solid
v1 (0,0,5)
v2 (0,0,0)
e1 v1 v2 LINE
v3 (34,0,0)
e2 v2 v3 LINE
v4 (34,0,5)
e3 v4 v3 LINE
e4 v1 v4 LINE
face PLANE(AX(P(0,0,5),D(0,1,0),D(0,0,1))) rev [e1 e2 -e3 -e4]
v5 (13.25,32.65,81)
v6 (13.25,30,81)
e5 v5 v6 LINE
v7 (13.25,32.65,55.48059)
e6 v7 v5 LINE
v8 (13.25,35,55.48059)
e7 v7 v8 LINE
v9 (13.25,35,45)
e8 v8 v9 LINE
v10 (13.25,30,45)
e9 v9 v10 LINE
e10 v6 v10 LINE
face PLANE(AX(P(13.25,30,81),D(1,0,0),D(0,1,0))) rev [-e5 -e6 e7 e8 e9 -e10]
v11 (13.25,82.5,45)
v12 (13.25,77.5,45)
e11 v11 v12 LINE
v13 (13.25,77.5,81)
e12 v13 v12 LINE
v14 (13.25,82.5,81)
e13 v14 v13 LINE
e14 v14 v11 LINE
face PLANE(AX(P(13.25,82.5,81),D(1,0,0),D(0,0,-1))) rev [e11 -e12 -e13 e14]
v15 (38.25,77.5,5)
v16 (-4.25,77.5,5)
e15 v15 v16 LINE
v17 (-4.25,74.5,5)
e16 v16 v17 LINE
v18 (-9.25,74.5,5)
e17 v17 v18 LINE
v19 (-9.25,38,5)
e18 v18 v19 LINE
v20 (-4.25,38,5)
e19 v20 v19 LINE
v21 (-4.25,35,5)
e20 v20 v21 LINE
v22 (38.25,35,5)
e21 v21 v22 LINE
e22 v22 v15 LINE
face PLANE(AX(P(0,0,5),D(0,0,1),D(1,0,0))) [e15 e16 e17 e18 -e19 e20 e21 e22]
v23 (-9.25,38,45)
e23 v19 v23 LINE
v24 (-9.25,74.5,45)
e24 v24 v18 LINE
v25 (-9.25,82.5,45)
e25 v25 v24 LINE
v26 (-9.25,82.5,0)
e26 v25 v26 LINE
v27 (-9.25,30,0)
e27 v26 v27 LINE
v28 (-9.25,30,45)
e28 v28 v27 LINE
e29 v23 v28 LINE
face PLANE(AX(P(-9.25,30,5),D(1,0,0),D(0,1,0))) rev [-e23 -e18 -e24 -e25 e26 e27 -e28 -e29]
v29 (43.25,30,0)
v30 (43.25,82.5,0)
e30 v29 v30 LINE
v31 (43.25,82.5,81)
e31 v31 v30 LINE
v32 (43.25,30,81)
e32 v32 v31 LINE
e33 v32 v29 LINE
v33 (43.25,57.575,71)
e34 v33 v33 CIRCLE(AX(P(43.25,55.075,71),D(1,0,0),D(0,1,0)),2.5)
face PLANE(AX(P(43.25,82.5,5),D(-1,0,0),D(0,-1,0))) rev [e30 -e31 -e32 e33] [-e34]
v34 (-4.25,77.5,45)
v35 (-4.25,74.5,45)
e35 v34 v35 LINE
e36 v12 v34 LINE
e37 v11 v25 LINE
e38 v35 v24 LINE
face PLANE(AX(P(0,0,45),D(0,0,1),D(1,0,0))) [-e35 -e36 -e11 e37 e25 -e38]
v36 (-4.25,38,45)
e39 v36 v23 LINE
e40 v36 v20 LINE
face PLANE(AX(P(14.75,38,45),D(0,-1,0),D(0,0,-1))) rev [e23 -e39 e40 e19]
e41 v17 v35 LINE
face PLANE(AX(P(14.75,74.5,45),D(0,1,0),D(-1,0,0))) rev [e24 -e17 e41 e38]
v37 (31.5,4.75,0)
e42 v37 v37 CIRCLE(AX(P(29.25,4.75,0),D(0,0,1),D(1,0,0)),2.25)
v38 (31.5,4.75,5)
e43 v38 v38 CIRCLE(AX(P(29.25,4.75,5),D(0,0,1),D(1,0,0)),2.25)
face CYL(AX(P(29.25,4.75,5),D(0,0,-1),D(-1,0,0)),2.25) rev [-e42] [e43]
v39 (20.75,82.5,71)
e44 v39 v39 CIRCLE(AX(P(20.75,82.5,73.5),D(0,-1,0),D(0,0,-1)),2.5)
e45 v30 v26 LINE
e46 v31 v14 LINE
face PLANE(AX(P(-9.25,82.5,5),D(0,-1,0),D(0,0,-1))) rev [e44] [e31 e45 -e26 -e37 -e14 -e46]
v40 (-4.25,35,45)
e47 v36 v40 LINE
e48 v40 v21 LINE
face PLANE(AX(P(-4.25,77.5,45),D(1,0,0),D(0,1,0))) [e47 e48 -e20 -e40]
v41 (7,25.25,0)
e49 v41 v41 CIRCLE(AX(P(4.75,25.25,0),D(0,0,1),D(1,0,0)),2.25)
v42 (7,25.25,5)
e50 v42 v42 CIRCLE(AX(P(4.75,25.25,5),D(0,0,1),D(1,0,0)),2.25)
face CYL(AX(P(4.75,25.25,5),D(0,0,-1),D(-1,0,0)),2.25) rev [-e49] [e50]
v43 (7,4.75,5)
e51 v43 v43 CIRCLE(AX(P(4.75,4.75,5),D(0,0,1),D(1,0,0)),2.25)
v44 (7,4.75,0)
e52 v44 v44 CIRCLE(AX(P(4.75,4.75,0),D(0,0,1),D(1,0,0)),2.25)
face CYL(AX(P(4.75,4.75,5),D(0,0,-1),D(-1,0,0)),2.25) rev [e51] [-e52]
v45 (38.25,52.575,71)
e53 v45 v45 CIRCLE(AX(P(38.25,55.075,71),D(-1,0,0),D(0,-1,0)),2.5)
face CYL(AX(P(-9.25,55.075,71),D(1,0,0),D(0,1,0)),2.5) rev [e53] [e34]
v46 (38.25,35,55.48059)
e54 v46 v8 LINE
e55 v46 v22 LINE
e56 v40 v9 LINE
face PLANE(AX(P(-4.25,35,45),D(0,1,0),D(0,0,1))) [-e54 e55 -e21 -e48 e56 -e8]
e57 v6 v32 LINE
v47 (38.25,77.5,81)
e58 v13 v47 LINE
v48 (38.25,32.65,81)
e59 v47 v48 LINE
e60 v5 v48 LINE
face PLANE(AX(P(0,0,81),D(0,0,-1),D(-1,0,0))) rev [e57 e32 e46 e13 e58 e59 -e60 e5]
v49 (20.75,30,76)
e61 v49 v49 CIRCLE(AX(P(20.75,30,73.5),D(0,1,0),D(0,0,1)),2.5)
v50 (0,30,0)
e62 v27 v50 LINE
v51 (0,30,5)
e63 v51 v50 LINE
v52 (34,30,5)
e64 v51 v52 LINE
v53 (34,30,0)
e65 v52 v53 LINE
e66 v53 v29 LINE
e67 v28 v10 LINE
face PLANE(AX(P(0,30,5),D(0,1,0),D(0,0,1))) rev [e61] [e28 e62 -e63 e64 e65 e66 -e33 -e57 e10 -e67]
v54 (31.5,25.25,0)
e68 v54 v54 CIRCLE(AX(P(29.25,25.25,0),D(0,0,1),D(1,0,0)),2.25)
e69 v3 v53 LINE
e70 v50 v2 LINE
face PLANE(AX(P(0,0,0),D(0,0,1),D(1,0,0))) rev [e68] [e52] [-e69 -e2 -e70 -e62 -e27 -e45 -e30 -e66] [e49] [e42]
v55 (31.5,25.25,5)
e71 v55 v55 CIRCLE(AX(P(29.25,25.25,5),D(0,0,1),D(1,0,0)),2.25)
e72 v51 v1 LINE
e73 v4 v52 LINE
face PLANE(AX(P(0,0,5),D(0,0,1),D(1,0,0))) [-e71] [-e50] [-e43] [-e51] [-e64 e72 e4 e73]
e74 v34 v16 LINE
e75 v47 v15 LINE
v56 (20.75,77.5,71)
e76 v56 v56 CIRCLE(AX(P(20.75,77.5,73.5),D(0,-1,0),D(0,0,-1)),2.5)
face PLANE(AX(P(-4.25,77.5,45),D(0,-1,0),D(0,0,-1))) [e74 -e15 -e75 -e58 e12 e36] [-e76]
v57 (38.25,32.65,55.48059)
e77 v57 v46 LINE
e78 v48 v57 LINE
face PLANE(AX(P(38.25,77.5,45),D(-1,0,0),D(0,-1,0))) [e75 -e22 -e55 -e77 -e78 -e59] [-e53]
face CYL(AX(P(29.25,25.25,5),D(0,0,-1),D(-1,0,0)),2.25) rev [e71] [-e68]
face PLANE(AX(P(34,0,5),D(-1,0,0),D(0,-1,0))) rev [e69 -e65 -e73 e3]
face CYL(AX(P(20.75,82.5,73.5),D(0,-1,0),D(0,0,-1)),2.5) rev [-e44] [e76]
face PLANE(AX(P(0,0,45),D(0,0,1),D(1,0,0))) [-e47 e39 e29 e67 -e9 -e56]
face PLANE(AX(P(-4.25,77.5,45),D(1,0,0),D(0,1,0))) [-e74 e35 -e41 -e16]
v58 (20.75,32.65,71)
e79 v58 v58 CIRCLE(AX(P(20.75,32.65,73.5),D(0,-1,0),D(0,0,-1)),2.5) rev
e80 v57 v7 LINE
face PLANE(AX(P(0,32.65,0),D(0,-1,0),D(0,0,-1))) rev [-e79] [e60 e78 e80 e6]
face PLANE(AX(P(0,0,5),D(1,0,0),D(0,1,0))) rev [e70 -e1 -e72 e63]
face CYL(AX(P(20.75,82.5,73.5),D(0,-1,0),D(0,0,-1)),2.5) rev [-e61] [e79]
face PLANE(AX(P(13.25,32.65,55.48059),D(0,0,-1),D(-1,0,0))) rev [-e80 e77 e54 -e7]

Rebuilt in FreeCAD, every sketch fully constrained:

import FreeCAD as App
import Part
import Sketcher
from FreeCAD import Vector
Q = App.Units.Quantity


def add_polygon(sketch, points):
    """Adds a closed chain of lines whose ends are joined by coincident constraints."""
    first, n = sketch.GeometryCount, len(points)
    for a, b in zip(points, points[1:] + points[:1]):
        sketch.addGeometry(Part.LineSegment(App.Vector(*a, 0), App.Vector(*b, 0)), False)
    for i in range(n):
        sketch.addConstraint(Sketcher.Constraint("Coincident", first + i, 2, first + (i + 1) % n, 1))

doc = App.newDocument("Part")
body = doc.addObject("PartDesign::Body", "Body")

# Sketch on XY plane
sketch1 = doc.addObject("Sketcher::SketchObject", "Sketch")
body.addObject(sketch1)
sketch1.AttachmentSupport = (doc.XY_Plane, [""])
sketch1.MapMode = "FlatFace"
add_polygon(sketch1, [(-9.25, 30), (0, 30), (0, 0), (34, 0), (34, 30), (43.25, 30), (43.25, 82.5), (-9.25, 82.5)])  # lines 0-7
sketch1.addGeometry(Part.Circle(Vector(29.25, 4.75, 0), Vector(0, 0, 1), 2.25), False)  # 8
sketch1.addGeometry(Part.Circle(Vector(4.75, 4.75, 0), Vector(0, 0, 1), 2.25), False)  # 9
sketch1.addGeometry(Part.Circle(Vector(29.25, 25.25, 0), Vector(0, 0, 1), 2.25), False)  # 10
sketch1.addGeometry(Part.Circle(Vector(4.75, 25.25, 0), Vector(0, 0, 1), 2.25), False)  # 11
sketch1.addConstraint(Sketcher.Constraint("Horizontal", 0))
sketch1.addConstraint(Sketcher.Constraint("Vertical", 1))
sketch1.addConstraint(Sketcher.Constraint("Horizontal", 2))
sketch1.addConstraint(Sketcher.Constraint("Vertical", 3))
sketch1.addConstraint(Sketcher.Constraint("Horizontal", 4))
sketch1.addConstraint(Sketcher.Constraint("Vertical", 5))
sketch1.addConstraint(Sketcher.Constraint("Horizontal", 6))
sketch1.addConstraint(Sketcher.Constraint("Vertical", 7))
sketch1.addConstraint(Sketcher.Constraint("Coincident", 1, 2, -1, 1))
sketch1.addConstraint(Sketcher.Constraint("Equal", 8, 9))
sketch1.addConstraint(Sketcher.Constraint("Equal", 9, 10))
sketch1.addConstraint(Sketcher.Constraint("Equal", 10, 11))
sketch1.addConstraint(Sketcher.Constraint("Horizontal", 8, 3, 9, 3))
sketch1.addConstraint(Sketcher.Constraint("Horizontal", 10, 3, 11, 3))
sketch1.addConstraint(Sketcher.Constraint("Horizontal", 0, 2, 3, 2))
sketch1.addConstraint(Sketcher.Constraint("Vertical", 8, 3, 10, 3))
sketch1.addConstraint(Sketcher.Constraint("Vertical", 9, 3, 11, 3))
sketch1.addConstraint(Sketcher.Constraint("Equal", 0, 4))
sketch1.addConstraint(Sketcher.Constraint("Equal", 6, 5))
sketch1.addConstraint(Sketcher.Constraint("Diameter", 8, Q("4.5 mm")))
sketch1.addConstraint(Sketcher.Constraint("DistanceX", 2, 1, 2, 2, Q("34 mm")))
sketch1.addConstraint(Sketcher.Constraint("DistanceY", 1, 2, 1, 1, Q("30 mm")))
sketch1.addConstraint(Sketcher.Constraint("DistanceX", 6, 2, 6, 1, Q("52.5 mm")))
sketch1.addConstraint(Sketcher.Constraint("DistanceX", 10, 3, 4, 2, Q("14 mm")))
sketch1.addConstraint(Sketcher.Constraint("DistanceX", 6, 2, 11, 3, Q("14 mm")))
sketch1.addConstraint(Sketcher.Constraint("DistanceY", 8, 3, 10, 3, Q("20.5 mm")))
sketch1.addConstraint(Sketcher.Constraint("DistanceY", -1, 1, 8, 3, Q("4.75 mm")))
pad1 = doc.addObject("PartDesign::Pad", "Pad")
body.addObject(pad1)
pad1.Profile = sketch1
pad1.Length = 5

# Sketch on XY plane
sketch2 = doc.addObject("Sketcher::SketchObject", "Sketch001")
body.addObject(sketch2)
sketch2.AttachmentSupport = (doc.XY_Plane, [""])
sketch2.MapMode = "FlatFace"
sketch2.AttachmentOffset = App.Placement(Vector(0, 0, 5), App.Rotation())
add_polygon(sketch2, [(-9.25, 82.5), (-9.25, 30), (43.25, 30), (43.25, 82.5)])  # lines 0-3
add_polygon(sketch2, [(38.25, 35), (-4.25, 35), (-4.25, 77.5), (38.25, 77.5)])  # lines 4-7
sketch2.addConstraint(Sketcher.Constraint("Vertical", 0))
sketch2.addConstraint(Sketcher.Constraint("Horizontal", 1))
sketch2.addConstraint(Sketcher.Constraint("Vertical", 2))
sketch2.addConstraint(Sketcher.Constraint("Horizontal", 3))
sketch2.addConstraint(Sketcher.Constraint("Horizontal", 4))
sketch2.addConstraint(Sketcher.Constraint("Vertical", 5))
sketch2.addConstraint(Sketcher.Constraint("Horizontal", 6))
sketch2.addConstraint(Sketcher.Constraint("Vertical", 7))
sketch2.addConstraint(Sketcher.Constraint("Equal", 3, 0))
sketch2.addConstraint(Sketcher.Constraint("Equal", 6, 5))
sketch2.addConstraint(Sketcher.Constraint("DistanceX", 1, 1, 1, 2, Q("52.5 mm")))
sketch2.addConstraint(Sketcher.Constraint("DistanceX", 4, 2, 4, 1, Q("42.5 mm")))
sketch2.addConstraint(Sketcher.Constraint("DistanceY", -1, 1, 0, 2, Q("30 mm")))
sketch2.addConstraint(Sketcher.Constraint("DistanceY", -1, 1, 4, 2, Q("35 mm")))
sketch2.addConstraint(Sketcher.Constraint("DistanceX", 0, 2, 4, 2, Q("5 mm")))
sketch2.addConstraint(Sketcher.Constraint("DistanceX", 0, 2, -1, 1, Q("9.25 mm")))
pad2 = doc.addObject("PartDesign::Pad", "Pad001")
body.addObject(pad2)
pad2.Profile = sketch2
pad2.Length = 40

# Sketch on XY plane
sketch3 = doc.addObject("Sketcher::SketchObject", "Sketch002")
body.addObject(sketch3)
sketch3.AttachmentSupport = (doc.XY_Plane, [""])
sketch3.MapMode = "FlatFace"
sketch3.AttachmentOffset = App.Placement(Vector(0, 0, 45), App.Rotation())
add_polygon(sketch3, [(43.25, 30), (43.25, 82.5), (13.25, 82.5), (13.25, 77.5), (38.25, 77.5), (38.25, 35), (13.25, 35), (13.25, 30)])  # lines 0-7
sketch3.addConstraint(Sketcher.Constraint("Vertical", 0))
sketch3.addConstraint(Sketcher.Constraint("Horizontal", 1))
sketch3.addConstraint(Sketcher.Constraint("Vertical", 2))
sketch3.addConstraint(Sketcher.Constraint("Horizontal", 3))
sketch3.addConstraint(Sketcher.Constraint("Vertical", 4))
sketch3.addConstraint(Sketcher.Constraint("Horizontal", 5))
sketch3.addConstraint(Sketcher.Constraint("Vertical", 6))
sketch3.addConstraint(Sketcher.Constraint("Horizontal", 7))
sketch3.addConstraint(Sketcher.Constraint("Vertical", 2, 2, 5, 2))
sketch3.addConstraint(Sketcher.Constraint("Equal", 2, 6))
sketch3.addConstraint(Sketcher.Constraint("DistanceX", 1, 2, 1, 1, Q("30 mm")))
sketch3.addConstraint(Sketcher.Constraint("DistanceX", 3, 1, 3, 2, Q("25 mm")))
sketch3.addConstraint(Sketcher.Constraint("DistanceY", 2, 2, 2, 1, Q("5 mm")))
sketch3.addConstraint(Sketcher.Constraint("DistanceY", 0, 1, 0, 2, Q("52.5 mm")))
sketch3.addConstraint(Sketcher.Constraint("DistanceY", -1, 1, 4, 2, Q("35 mm")))
sketch3.addConstraint(Sketcher.Constraint("DistanceX", -1, 1, 0, 2, Q("43.25 mm")))
pad3 = doc.addObject("PartDesign::Pad", "Pad002")
body.addObject(pad3)
pad3.Profile = sketch3
pad3.Length = 36

# Sketch on XZ plane
sketch4 = doc.addObject("Sketcher::SketchObject", "Sketch003")
body.addObject(sketch4)
sketch4.AttachmentSupport = (doc.XZ_Plane, [""])
sketch4.MapMode = "FlatFace"
sketch4.AttachmentOffset = App.Placement(Vector(0, 0, -77.5), App.Rotation())
sketch4.addGeometry(Part.Circle(Vector(20.75, 73.5, 0), Vector(0, 0, 1), 2.5), False)
sketch4.addConstraint(Sketcher.Constraint("Diameter", 0, Q("5 mm")))
sketch4.addConstraint(Sketcher.Constraint("DistanceY", -1, 1, 0, 3, Q("73.5 mm")))
sketch4.addConstraint(Sketcher.Constraint("DistanceX", -1, 1, 0, 3, Q("20.75 mm")))
pocket1 = doc.addObject("PartDesign::Pocket", "Pocket")
body.addObject(pocket1)
pocket1.Profile = sketch4
pocket1.Type = "ThroughAll"
pocket1.Midplane = True

# Sketch on YZ plane
sketch5 = doc.addObject("Sketcher::SketchObject", "Sketch004")
body.addObject(sketch5)
sketch5.AttachmentSupport = (doc.YZ_Plane, [""])
sketch5.MapMode = "FlatFace"
sketch5.AttachmentOffset = App.Placement(Vector(0, 0, 43.25), App.Rotation())
sketch5.addGeometry(Part.Circle(Vector(55.075, 71, 0), Vector(0, 0, 1), 2.5), False)
sketch5.addConstraint(Sketcher.Constraint("Diameter", 0, Q("5 mm")))
sketch5.addConstraint(Sketcher.Constraint("DistanceY", -1, 1, 0, 3, Q("71 mm")))
sketch5.addConstraint(Sketcher.Constraint("DistanceX", -1, 1, 0, 3, Q("55.075 mm")))
pocket2 = doc.addObject("PartDesign::Pocket", "Pocket001")
body.addObject(pocket2)
pocket2.Profile = sketch5
pocket2.Type = "ThroughAll"
pocket2.Midplane = True

# Sketch on YZ plane
sketch6 = doc.addObject("Sketcher::SketchObject", "Sketch005")
body.addObject(sketch6)
sketch6.AttachmentSupport = (doc.YZ_Plane, [""])
sketch6.MapMode = "FlatFace"
sketch6.AttachmentOffset = App.Placement(Vector(0, 0, -9.25), App.Rotation())
add_polygon(sketch6, [(74.5, 5), (38, 5), (38, 45), (74.5, 45)])  # lines 0-3
sketch6.addConstraint(Sketcher.Constraint("Horizontal", 0))
sketch6.addConstraint(Sketcher.Constraint("Vertical", 1))
sketch6.addConstraint(Sketcher.Constraint("Horizontal", 2))
sketch6.addConstraint(Sketcher.Constraint("Vertical", 3))
sketch6.addConstraint(Sketcher.Constraint("DistanceY", 1, 1, 1, 2, Q("40 mm")))
sketch6.addConstraint(Sketcher.Constraint("DistanceX", 0, 2, 0, 1, Q("36.5 mm")))
sketch6.addConstraint(Sketcher.Constraint("DistanceX", -1, 1, 0, 2, Q("38 mm")))
sketch6.addConstraint(Sketcher.Constraint("DistanceY", -1, 1, 0, 2, Q("5 mm")))
pocket3 = doc.addObject("PartDesign::Pocket", "Pocket002")
body.addObject(pocket3)
pocket3.Profile = sketch6
pocket3.Length = 24
pocket3.Reversed = True

# Sketch on XZ plane
sketch7 = doc.addObject("Sketcher::SketchObject", "Sketch006")
body.addObject(sketch7)
sketch7.AttachmentSupport = (doc.XZ_Plane, [""])
sketch7.MapMode = "FlatFace"
sketch7.AttachmentOffset = App.Placement(Vector(0, 0, -35), App.Rotation())
add_polygon(sketch7, [(13.25, 55.48059), (13.25, 81), (38.25, 81), (38.25, 55.48059)])  # lines 0-3
sketch7.addConstraint(Sketcher.Constraint("Vertical", 0))
sketch7.addConstraint(Sketcher.Constraint("Horizontal", 1))
sketch7.addConstraint(Sketcher.Constraint("Vertical", 2))
sketch7.addConstraint(Sketcher.Constraint("Horizontal", 3))
sketch7.addConstraint(Sketcher.Constraint("DistanceX", 1, 1, 1, 2, Q("25 mm")))
sketch7.addConstraint(Sketcher.Constraint("DistanceY", -1, 1, 0, 2, Q("81 mm")))
sketch7.addConstraint(Sketcher.Constraint("DistanceX", -1, 1, 0, 2, Q("13.25 mm")))
sketch7.addConstraint(Sketcher.Constraint("DistanceY", 0, 1, 0, 2, Q("25.51941 mm")))
pocket4 = doc.addObject("PartDesign::Pocket", "Pocket003")
body.addObject(pocket4)
pocket4.Profile = sketch7
pocket4.Length = 2.35
pocket4.Reversed = True

doc.recompute()
